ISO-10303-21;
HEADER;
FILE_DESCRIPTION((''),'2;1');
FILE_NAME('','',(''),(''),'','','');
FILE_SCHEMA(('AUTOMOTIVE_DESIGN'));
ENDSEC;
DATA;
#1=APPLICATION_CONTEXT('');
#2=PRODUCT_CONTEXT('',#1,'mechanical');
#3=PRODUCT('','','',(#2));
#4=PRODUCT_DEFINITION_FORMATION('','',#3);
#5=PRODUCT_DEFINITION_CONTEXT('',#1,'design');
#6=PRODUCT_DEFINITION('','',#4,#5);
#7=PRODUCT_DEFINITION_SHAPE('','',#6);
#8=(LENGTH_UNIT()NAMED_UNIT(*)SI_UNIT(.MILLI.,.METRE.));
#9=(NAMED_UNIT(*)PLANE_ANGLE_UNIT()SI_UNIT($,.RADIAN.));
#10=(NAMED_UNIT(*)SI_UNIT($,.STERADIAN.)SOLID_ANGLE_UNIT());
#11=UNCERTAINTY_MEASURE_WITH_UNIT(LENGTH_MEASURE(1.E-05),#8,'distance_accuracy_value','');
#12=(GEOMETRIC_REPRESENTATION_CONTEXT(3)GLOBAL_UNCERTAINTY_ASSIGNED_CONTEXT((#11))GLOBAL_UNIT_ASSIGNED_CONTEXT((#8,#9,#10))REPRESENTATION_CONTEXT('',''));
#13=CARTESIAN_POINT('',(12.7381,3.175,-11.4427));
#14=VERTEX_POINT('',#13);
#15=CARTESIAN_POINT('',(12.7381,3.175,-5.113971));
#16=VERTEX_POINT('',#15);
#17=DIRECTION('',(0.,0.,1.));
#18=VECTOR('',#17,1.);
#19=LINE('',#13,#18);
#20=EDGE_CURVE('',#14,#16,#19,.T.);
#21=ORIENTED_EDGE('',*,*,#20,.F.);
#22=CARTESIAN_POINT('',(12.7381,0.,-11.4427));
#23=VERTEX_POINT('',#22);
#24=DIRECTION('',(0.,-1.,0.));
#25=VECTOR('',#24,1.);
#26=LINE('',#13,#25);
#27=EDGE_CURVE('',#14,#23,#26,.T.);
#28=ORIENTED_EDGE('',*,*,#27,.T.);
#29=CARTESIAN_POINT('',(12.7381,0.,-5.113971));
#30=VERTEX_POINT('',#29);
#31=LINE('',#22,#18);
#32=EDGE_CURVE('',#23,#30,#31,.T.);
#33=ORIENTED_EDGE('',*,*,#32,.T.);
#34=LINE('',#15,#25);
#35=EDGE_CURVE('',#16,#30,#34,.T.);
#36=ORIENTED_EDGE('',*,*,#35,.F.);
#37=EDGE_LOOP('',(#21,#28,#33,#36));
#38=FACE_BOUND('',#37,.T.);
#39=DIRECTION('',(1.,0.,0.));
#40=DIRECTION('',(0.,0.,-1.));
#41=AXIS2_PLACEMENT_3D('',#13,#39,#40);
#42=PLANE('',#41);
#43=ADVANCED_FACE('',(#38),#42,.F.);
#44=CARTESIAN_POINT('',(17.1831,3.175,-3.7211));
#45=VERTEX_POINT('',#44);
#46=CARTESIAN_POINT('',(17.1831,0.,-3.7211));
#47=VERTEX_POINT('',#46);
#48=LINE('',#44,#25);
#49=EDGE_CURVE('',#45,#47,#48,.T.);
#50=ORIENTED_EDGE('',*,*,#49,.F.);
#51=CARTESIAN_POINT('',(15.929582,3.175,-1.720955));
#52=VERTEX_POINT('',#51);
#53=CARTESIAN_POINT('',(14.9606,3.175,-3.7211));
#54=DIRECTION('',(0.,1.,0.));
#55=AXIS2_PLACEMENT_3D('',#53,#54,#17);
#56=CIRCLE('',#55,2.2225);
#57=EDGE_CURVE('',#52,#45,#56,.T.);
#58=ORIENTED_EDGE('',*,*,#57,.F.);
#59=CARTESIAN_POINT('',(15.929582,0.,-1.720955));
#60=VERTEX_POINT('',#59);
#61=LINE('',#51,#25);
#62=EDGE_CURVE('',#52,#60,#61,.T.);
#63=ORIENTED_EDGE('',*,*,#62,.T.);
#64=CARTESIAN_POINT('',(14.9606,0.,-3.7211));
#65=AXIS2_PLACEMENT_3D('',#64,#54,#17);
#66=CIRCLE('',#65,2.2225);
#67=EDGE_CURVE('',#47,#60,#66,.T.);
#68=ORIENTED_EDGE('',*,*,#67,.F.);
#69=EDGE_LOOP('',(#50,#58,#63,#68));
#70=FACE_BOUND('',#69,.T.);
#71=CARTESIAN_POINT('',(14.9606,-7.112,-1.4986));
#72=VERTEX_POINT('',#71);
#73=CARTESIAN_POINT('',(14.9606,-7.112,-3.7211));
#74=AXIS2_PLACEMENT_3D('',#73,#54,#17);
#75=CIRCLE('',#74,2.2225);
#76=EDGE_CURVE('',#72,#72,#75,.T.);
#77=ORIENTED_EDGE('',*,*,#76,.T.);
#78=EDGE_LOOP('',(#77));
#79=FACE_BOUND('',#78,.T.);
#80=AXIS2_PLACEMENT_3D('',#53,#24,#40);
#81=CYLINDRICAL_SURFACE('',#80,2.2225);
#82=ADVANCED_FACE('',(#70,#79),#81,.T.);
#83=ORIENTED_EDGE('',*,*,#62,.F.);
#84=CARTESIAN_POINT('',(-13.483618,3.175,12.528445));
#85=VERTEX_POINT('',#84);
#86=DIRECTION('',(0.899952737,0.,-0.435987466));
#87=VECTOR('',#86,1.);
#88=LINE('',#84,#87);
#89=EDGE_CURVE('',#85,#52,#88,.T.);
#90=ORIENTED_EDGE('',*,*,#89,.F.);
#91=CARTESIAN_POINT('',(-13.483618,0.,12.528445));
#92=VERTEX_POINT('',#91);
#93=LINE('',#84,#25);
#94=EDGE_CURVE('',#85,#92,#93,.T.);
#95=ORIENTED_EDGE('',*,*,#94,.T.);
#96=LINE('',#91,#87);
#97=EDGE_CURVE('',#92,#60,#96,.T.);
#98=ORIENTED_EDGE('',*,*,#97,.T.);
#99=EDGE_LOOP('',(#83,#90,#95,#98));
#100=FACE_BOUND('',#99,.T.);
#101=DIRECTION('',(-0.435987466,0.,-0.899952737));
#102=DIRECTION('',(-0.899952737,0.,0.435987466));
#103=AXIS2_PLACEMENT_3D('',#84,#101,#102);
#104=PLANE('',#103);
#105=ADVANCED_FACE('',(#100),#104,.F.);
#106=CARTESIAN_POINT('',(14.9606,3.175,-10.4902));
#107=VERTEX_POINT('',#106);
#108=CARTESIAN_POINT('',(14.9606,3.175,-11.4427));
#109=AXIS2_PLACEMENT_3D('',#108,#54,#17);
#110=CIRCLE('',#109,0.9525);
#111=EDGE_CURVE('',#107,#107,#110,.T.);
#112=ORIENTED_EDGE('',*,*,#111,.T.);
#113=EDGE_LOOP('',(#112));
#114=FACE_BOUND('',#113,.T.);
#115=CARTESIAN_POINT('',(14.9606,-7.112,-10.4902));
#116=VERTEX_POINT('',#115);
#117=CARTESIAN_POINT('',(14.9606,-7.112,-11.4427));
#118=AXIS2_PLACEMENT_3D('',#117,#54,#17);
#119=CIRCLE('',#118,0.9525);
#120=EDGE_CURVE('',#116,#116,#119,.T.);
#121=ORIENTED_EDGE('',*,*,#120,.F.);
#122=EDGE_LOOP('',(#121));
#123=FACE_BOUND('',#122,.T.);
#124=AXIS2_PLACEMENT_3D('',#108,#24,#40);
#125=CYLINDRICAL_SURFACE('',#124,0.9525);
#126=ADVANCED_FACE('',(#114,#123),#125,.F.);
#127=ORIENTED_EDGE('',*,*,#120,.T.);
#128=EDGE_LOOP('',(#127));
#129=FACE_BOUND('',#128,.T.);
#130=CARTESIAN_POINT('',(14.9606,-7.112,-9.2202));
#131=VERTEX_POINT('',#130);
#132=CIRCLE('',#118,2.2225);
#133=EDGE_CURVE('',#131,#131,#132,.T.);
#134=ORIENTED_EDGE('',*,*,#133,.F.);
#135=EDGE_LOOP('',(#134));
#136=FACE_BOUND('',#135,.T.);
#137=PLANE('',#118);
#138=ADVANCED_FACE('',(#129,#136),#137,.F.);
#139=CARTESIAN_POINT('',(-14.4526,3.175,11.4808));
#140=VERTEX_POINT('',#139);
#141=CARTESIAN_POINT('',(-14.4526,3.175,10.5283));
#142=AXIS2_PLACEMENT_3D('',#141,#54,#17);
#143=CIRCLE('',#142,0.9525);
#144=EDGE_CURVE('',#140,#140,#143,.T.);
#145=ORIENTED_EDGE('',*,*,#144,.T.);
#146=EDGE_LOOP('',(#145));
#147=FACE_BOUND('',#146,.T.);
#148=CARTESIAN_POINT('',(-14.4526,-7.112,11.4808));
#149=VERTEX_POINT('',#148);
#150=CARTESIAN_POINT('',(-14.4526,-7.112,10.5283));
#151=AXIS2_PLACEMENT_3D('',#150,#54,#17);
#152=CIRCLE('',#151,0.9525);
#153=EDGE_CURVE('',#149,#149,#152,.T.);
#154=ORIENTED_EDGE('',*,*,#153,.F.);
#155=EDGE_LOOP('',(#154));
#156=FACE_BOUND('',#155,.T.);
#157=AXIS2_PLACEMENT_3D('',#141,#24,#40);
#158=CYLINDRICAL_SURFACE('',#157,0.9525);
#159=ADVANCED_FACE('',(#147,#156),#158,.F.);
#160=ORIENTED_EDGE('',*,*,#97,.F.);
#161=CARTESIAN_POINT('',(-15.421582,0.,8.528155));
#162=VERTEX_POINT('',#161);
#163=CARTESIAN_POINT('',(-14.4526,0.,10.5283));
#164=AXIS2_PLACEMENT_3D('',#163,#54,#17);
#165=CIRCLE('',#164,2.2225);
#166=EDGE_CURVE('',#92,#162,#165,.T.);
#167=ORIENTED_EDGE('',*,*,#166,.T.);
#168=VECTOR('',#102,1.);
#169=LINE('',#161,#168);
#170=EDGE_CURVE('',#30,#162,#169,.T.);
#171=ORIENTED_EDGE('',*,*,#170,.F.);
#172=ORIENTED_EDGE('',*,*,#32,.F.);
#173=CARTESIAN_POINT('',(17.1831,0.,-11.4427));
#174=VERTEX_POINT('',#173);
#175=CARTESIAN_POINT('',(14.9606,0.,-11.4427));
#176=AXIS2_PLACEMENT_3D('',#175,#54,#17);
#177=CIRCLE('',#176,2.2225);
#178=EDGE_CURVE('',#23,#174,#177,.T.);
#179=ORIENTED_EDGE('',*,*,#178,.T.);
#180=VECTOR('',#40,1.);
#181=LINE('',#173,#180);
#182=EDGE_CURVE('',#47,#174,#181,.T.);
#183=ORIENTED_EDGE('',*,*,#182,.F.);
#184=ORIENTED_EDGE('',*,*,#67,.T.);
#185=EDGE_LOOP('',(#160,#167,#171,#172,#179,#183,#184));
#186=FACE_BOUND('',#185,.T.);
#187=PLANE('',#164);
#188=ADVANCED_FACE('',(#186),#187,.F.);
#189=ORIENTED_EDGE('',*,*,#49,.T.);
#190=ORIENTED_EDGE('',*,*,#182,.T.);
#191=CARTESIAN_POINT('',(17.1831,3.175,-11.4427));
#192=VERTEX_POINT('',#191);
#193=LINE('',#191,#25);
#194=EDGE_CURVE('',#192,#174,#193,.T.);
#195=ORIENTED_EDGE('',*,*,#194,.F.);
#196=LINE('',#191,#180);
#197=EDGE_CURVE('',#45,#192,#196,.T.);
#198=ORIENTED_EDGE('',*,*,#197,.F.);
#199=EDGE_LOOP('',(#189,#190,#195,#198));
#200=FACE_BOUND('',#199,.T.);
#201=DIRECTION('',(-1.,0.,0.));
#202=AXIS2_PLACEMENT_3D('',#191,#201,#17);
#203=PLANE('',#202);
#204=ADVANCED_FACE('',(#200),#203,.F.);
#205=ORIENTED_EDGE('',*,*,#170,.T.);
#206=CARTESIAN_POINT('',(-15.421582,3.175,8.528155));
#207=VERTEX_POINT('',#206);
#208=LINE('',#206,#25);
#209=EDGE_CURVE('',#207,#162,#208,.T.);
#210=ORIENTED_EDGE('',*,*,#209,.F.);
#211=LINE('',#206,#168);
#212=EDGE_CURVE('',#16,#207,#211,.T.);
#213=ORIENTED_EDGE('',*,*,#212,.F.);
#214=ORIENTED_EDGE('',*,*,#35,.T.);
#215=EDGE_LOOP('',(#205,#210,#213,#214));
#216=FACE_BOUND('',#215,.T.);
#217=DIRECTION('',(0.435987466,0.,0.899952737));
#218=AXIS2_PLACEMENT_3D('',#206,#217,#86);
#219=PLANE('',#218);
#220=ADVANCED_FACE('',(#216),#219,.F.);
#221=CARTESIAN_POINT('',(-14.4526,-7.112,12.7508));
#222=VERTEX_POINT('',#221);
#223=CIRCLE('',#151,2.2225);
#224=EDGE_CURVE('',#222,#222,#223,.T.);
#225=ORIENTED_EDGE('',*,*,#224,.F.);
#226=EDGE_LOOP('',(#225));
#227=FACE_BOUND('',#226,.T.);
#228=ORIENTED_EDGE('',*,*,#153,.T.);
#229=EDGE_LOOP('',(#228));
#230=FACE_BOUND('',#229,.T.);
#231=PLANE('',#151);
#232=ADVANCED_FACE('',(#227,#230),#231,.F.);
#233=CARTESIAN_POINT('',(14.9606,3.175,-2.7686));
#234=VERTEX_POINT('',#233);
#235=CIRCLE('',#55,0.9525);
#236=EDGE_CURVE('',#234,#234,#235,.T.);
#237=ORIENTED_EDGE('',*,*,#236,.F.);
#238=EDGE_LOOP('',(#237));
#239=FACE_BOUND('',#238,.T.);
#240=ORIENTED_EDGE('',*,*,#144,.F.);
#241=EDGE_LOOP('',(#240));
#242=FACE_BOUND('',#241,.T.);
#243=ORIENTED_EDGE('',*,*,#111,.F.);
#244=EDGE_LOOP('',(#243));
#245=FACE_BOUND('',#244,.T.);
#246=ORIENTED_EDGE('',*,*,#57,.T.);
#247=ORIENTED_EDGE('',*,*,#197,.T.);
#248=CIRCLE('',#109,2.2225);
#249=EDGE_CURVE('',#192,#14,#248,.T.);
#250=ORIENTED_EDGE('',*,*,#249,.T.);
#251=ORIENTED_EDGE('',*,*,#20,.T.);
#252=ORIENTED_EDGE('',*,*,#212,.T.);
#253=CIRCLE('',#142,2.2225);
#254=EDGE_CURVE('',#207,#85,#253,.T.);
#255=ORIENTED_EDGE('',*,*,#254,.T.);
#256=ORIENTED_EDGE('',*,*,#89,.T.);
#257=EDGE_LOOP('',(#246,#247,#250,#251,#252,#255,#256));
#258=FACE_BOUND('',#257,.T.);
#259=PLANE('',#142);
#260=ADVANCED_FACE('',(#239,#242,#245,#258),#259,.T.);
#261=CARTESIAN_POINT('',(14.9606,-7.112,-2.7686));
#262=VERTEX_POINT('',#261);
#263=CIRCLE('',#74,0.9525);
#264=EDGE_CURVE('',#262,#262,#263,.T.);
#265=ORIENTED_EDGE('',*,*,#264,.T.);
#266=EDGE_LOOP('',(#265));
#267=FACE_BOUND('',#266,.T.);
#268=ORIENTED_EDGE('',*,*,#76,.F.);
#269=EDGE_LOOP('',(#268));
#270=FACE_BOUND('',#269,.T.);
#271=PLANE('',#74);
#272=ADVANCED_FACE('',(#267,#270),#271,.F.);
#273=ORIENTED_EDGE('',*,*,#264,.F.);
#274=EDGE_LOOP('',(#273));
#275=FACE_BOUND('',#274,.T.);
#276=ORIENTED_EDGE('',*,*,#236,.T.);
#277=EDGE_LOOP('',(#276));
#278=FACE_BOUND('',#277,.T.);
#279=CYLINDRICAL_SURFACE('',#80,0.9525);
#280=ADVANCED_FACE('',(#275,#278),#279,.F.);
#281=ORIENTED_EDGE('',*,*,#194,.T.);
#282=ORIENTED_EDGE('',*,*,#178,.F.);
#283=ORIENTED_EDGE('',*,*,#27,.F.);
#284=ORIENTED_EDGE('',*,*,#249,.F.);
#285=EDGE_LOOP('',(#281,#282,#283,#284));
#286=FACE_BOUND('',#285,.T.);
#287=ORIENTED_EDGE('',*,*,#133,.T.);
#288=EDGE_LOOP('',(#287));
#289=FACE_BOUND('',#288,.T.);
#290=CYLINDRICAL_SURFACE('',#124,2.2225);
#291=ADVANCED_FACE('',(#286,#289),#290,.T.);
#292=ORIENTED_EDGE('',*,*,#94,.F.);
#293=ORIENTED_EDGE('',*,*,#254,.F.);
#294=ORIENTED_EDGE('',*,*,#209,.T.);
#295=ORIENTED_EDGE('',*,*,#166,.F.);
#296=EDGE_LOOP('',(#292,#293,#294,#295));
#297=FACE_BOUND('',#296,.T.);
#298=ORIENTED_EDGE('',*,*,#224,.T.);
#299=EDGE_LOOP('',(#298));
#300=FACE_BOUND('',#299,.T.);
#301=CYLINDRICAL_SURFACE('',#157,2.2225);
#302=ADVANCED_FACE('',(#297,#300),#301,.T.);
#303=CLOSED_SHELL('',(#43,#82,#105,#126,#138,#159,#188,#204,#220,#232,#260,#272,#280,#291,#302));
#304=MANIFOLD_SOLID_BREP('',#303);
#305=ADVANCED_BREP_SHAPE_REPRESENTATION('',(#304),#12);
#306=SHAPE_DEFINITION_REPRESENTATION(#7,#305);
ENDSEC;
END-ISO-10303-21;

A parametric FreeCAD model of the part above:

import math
import FreeCAD as App
import Part
import Sketcher

V = App.Vector
Q = App.Units.Quantity

doc = App.newDocument("Part")
body = doc.addObject("PartDesign::Body", "Body")

# Sketch on XZ plane
sketch1 = body.newObject("Sketcher::SketchObject", "Sketch")
sketch1.AttachmentSupport = (doc.getObject("XZ_Plane"), [""])
sketch1.MapMode = "FlatFace"
sketch1.addGeometry(Part.LineSegment(V(17.1831, -3.7211, 0), V(17.1831, -11.4427, 0)), False)
sketch1.addGeometry(Part.ArcOfCircle(Part.Circle(V(14.9606, -11.4427, 0), V(0, 0, 1), 2.2225), math.radians(180), math.radians(360)), False)
sketch1.addGeometry(Part.LineSegment(V(12.7381, -11.4427, 0), V(12.7381, -5.113971, 0)), False)
sketch1.addGeometry(Part.LineSegment(V(12.7381, -5.113971, 0), V(-15.421582, 8.528155, 0)), False)
sketch1.addGeometry(Part.ArcOfCircle(Part.Circle(V(-14.4526, 10.5283, 0), V(0, 0, 1), 2.2225), math.radians(64.151855), math.radians(244.151855)), False)
sketch1.addGeometry(Part.LineSegment(V(-13.483618, 12.528445, 0), V(15.929582, -1.720955, 0)), False)
sketch1.addGeometry(Part.ArcOfCircle(Part.Circle(V(14.9606, -3.7211, 0), V(0, 0, 1), 2.2225), math.radians(0), math.radians(64.151856)), False)
sketch1.addGeometry(Part.Circle(V(-14.4526, 10.5283, 0), V(0, 0, 1), 0.9525), False)
sketch1.addGeometry(Part.Circle(V(14.9606, -3.7211, 0), V(0, 0, 1), 0.9525), False)
sketch1.addGeometry(Part.Circle(V(14.9606, -11.4427, 0), V(0, 0, 1), 0.9525), False)
sketch1.addConstraint(Sketcher.Constraint("Tangent", 0, 2, 1, 2))
sketch1.addConstraint(Sketcher.Constraint("Tangent", 1, 1, 2, 1))
sketch1.addConstraint(Sketcher.Constraint("Coincident", 2, 2, 3, 1))
sketch1.addConstraint(Sketcher.Constraint("Tangent", 3, 2, 4, 2))
sketch1.addConstraint(Sketcher.Constraint("Tangent", 4, 1, 5, 1))
sketch1.addConstraint(Sketcher.Constraint("Tangent", 5, 2, 6, 2))
sketch1.addConstraint(Sketcher.Constraint("Tangent", 6, 1, 0, 1))
sketch1.addConstraint(Sketcher.Constraint("Vertical", 0))
sketch1.addConstraint(Sketcher.Constraint("Vertical", 2))
sketch1.addConstraint(Sketcher.Constraint("Coincident", 7, 3, 4, 3))
sketch1.addConstraint(Sketcher.Constraint("Coincident", 8, 3, 6, 3))
sketch1.addConstraint(Sketcher.Constraint("Coincident", 9, 3, 1, 3))
sketch1.addConstraint(Sketcher.Constraint("Equal", 1, 4))
sketch1.addConstraint(Sketcher.Constraint("Equal", 4, 6))
sketch1.addConstraint(Sketcher.Constraint("Equal", 7, 8))
sketch1.addConstraint(Sketcher.Constraint("Equal", 8, 9))
sketch1.addConstraint(Sketcher.Constraint("Parallel", 3, 5))
sketch1.addConstraint(Sketcher.Constraint("Diameter", 7, Q("0.075 in")))
sketch1.addConstraint(Sketcher.Constraint("Radius", 1, Q("0.0875 in")))
sketch1.addConstraint(Sketcher.Constraint("DistanceY", 0, 2, 0, 1, Q("0.304 in")))
sketch1.addConstraint(Sketcher.Constraint("DistanceX", -1, 1, 1, 3, Q("0.589 in")))
sketch1.addConstraint(Sketcher.Constraint("DistanceX", 4, 3, -1, 1, Q("0.569 in")))
sketch1.addConstraint(Sketcher.Constraint("DistanceY", 1, 3, 4, 3, Q("0.865 in")))
sketch1.addConstraint(Sketcher.Constraint("DistanceY", 1, 3, -1, 1, Q("0.4505 in")))
pad1 = body.newObject("PartDesign::Pad", "Pad")
pad1.Profile = sketch1
pad1.Length = Q("0.125 in")
pad1.Reversed = True

# Sketch on XZ plane
sketch2 = body.newObject("Sketcher::SketchObject", "Sketch001")
sketch2.AttachmentSupport = (doc.getObject("XZ_Plane"), [""])
sketch2.MapMode = "FlatFace"
sketch2.AttachmentOffset = App.Placement(V(0, 0, -0.125 * 25.4), App.Rotation())
sketch2.addGeometry(Part.Circle(V(14.9606, -11.4427, 0), V(0, 0, 1), 2.2225), False)
sketch2.addGeometry(Part.Circle(V(14.9606, -11.4427, 0), V(0, 0, 1), 0.9525), False)
sketch2.addGeometry(Part.Circle(V(14.9606, -3.7211, 0), V(0, 0, 1), 2.2225), False)
sketch2.addGeometry(Part.Circle(V(14.9606, -3.7211, 0), V(0, 0, 1), 0.9525), False)
sketch2.addGeometry(Part.Circle(V(-14.4526, 10.5283, 0), V(0, 0, 1), 2.2225), False)
sketch2.addGeometry(Part.Circle(V(-14.4526, 10.5283, 0), V(0, 0, 1), 0.9525), False)
sketch2.addConstraint(Sketcher.Constraint("Coincident", 1, 3, 0, 3))
sketch2.addConstraint(Sketcher.Constraint("Coincident", 3, 3, 2, 3))
sketch2.addConstraint(Sketcher.Constraint("Coincident", 5, 3, 4, 3))
sketch2.addConstraint(Sketcher.Constraint("Equal", 0, 2))
sketch2.addConstraint(Sketcher.Constraint("Equal", 1, 3))
sketch2.addConstraint(Sketcher.Constraint("Equal", 2, 4))
sketch2.addConstraint(Sketcher.Constraint("Equal", 3, 5))
sketch2.addConstraint(Sketcher.Constraint("Vertical", 1, 3, 2, 3))
sketch2.addConstraint(Sketcher.Constraint("Diameter", 0, Q("0.175 in")))
sketch2.addConstraint(Sketcher.Constraint("Diameter", 1, Q("0.075 in")))
sketch2.addConstraint(Sketcher.Constraint("DistanceX", -1, 1, 0, 3, Q("0.589 in")))
sketch2.addConstraint(Sketcher.Constraint("DistanceX", 4, 3, -1, 1, Q("0.569 in")))
sketch2.addConstraint(Sketcher.Constraint("DistanceY", 0, 3, 2, 3, Q("0.304 in")))
sketch2.addConstraint(Sketcher.Constraint("DistanceY", 2, 3, 4, 3, Q("0.561 in")))
sketch2.addConstraint(Sketcher.Constraint("DistanceY", 0, 3, -1, 1, Q("0.4505 in")))
pad2 = body.newObject("PartDesign::Pad", "Pad001")
pad2.Profile = sketch2
pad2.Length = Q("0.405 in")

doc.recompute()
